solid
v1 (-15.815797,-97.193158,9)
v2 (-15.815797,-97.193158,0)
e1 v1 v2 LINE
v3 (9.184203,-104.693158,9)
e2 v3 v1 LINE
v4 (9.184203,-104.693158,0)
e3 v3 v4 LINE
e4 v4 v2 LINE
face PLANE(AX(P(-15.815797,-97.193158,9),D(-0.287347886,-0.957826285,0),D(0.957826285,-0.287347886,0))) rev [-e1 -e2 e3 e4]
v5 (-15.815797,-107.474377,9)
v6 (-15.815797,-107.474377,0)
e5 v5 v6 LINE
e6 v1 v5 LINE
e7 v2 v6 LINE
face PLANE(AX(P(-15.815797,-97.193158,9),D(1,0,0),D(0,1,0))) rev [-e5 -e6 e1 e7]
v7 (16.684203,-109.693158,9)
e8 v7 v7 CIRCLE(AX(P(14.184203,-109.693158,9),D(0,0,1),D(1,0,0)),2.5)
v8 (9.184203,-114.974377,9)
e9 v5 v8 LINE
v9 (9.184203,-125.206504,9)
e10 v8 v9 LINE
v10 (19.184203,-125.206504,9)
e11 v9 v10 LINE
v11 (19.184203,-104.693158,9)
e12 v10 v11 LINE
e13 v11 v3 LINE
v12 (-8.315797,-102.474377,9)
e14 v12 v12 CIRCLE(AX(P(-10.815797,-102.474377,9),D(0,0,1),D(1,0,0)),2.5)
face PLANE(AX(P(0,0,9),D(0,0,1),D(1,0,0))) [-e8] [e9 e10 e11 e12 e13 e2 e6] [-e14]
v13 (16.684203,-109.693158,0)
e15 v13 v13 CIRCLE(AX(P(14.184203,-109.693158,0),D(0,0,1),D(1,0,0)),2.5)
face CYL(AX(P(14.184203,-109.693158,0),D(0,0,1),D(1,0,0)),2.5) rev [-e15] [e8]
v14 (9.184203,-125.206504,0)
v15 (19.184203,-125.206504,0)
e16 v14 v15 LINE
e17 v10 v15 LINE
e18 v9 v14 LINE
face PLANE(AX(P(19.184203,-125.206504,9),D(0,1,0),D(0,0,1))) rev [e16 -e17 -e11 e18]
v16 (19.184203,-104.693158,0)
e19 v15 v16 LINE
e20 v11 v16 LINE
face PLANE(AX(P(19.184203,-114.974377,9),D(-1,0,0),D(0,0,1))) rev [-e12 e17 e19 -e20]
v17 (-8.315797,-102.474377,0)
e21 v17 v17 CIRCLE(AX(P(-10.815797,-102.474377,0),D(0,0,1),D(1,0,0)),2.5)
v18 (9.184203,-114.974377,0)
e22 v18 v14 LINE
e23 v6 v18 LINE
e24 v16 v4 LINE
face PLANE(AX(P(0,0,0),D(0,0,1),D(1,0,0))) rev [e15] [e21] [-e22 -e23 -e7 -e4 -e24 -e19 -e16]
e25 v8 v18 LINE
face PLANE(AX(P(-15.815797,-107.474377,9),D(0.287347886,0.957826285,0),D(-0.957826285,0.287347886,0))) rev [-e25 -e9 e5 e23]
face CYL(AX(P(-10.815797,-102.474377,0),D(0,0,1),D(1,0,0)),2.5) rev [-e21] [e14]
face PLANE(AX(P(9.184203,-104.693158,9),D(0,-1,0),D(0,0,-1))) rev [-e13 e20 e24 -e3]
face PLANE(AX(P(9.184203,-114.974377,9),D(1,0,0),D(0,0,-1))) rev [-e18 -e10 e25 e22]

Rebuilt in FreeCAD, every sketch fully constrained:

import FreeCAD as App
import Part
import Sketcher

V = App.Vector
Q = App.Units.Quantity


def add_polygon(sketch, points):
    """Adds a closed chain of lines whose ends are joined by coincident constraints."""
    first, n = sketch.GeometryCount, len(points)
    for a, b in zip(points, points[1:] + points[:1]):
        sketch.addGeometry(Part.LineSegment(App.Vector(*a, 0), App.Vector(*b, 0)), False)
    for i in range(n):
        sketch.addConstraint(Sketcher.Constraint("Coincident", first + i, 2, first + (i + 1) % n, 1))

doc = App.newDocument("Part")
body = doc.addObject("PartDesign::Body", "Body")

# Sketch on XY plane
sketch1 = doc.addObject("Sketcher::SketchObject", "Sketch")
body.addObject(sketch1)
sketch1.AttachmentSupport = (doc.XY_Plane, [""])
sketch1.MapMode = "FlatFace"
add_polygon(sketch1, [(-16, -97), (-16, -107), (9, -115), (9, -125), (19, -125), (19, -105), (9, -105)])  # lines 0-6
sketch1.addConstraint(Sketcher.Constraint("Vertical", 0))
sketch1.addConstraint(Sketcher.Constraint("Vertical", 2))
sketch1.addConstraint(Sketcher.Constraint("Horizontal", 3))
sketch1.addConstraint(Sketcher.Constraint("Vertical", 4))
sketch1.addConstraint(Sketcher.Constraint("Horizontal", 5))
sketch1.addConstraint(Sketcher.Constraint("Parallel", 1, 6))
sketch1.addConstraint(Sketcher.Constraint("Vertical", 2, 2, 5, 2))
sketch1.addConstraint(Sketcher.Constraint("DistanceX", 3, 1, 3, 2, Q("10 mm")))
sketch1.addConstraint(Sketcher.Constraint("DistanceX", 0, 2, 1, 2, Q("25 mm")))
sketch1.addConstraint(Sketcher.Constraint("DistanceY", 1, 2, 0, 2, Q("7.5 mm")))
sketch1.addConstraint(Sketcher.Constraint("DistanceY", 0, 2, 0, 1, Q("10.281219 mm")))
sketch1.addConstraint(Sketcher.Constraint("DistanceY", 2, 2, 2, 1, Q("10.232127 mm")))
sketch1.addConstraint(Sketcher.Constraint("DistanceX", 0, 2, -1, 1, Q("15.815797 mm")))
sketch1.addConstraint(Sketcher.Constraint("DistanceY", 0, 2, -1, 1, Q("107.474377 mm")))
pad1 = doc.addObject("PartDesign::Pad", "Pad")
body.addObject(pad1)
pad1.Profile = sketch1
pad1.Length = 9

# Sketch on XY plane
sketch2 = doc.addObject("Sketcher::SketchObject", "Sketch001")
body.addObject(sketch2)
sketch2.AttachmentSupport = (doc.XY_Plane, [""])
sketch2.MapMode = "FlatFace"
sketch2.AttachmentOffset = App.Placement(V(0, 0, 9), App.Rotation())
sketch2.addGeometry(Part.Circle(V(14.2, -109.7, 0), V(0, 0, 1), 2.5), False)
sketch2.addGeometry(Part.Circle(V(-10.8, -102.5, 0), V(0, 0, 1), 2.5), False)
sketch2.addConstraint(Sketcher.Constraint("Equal", 0, 1))
sketch2.addConstraint(Sketcher.Constraint("Diameter", 0, Q("5 mm")))
sketch2.addConstraint(Sketcher.Constraint("DistanceX", 1, 3, 0, 3, Q("25 mm")))
sketch2.addConstraint(Sketcher.Constraint("DistanceY", 0, 3, 1, 3, Q("7.218781 mm")))
sketch2.addConstraint(Sketcher.Constraint("DistanceX", -1, 1, 0, 3, Q("14.184203 mm")))
sketch2.addConstraint(Sketcher.Constraint("DistanceY", 0, 3, -1, 1, Q("109.693158 mm")))
pocket1 = doc.addObject("PartDesign::Pocket", "Pocket")
body.addObject(pocket1)
pocket1.Profile = sketch2
pocket1.Length = 9

doc.recompute()
